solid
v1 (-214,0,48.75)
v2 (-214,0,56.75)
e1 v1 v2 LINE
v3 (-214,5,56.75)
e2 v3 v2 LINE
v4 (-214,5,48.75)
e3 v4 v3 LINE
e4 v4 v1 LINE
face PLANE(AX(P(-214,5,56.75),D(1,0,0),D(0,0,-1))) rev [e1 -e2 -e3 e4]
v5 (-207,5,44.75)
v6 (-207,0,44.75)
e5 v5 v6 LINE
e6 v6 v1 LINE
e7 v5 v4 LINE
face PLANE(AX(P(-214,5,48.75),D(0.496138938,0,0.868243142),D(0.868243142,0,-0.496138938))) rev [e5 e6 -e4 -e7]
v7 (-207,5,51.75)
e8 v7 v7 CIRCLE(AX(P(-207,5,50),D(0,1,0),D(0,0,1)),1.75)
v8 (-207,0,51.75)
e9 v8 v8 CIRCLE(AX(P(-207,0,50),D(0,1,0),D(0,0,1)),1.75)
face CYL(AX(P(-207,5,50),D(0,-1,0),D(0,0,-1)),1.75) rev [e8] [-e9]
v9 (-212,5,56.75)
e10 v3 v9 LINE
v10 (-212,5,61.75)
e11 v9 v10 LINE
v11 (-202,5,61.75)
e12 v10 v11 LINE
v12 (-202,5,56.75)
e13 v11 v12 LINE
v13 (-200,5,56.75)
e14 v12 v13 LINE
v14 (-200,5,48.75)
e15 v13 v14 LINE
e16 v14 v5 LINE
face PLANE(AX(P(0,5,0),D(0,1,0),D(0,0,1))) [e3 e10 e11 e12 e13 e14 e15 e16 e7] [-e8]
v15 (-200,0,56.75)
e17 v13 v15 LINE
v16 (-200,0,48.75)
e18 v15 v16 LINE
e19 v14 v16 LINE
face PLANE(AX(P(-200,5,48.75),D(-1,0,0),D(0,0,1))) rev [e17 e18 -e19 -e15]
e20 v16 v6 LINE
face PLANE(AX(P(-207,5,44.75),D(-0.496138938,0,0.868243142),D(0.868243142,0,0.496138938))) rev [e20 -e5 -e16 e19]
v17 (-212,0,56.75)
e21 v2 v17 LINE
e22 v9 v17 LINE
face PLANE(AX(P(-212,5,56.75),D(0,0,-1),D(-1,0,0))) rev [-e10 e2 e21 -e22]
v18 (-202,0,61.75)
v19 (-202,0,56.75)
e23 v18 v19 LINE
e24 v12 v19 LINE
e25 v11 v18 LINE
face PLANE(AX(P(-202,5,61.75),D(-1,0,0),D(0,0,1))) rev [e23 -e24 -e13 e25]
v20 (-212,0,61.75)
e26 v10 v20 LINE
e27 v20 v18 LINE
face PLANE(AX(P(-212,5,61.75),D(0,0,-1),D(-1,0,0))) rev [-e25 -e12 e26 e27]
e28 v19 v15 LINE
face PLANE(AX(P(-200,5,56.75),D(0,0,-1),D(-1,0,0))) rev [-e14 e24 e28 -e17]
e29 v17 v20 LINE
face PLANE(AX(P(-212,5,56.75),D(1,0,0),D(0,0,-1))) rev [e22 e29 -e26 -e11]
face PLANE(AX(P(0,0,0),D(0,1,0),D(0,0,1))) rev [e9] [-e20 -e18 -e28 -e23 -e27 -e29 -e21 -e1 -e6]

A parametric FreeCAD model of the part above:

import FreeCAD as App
import Part
import Sketcher

V = App.Vector

doc = App.newDocument("Part")
body = doc.addObject("PartDesign::Body", "Body")

# Sketch on XZ plane
sketch1 = body.newObject("Sketcher::SketchObject", "Sketch")
sketch1.AttachmentSupport = (doc.getObject("XZ_Plane"), [""])
sketch1.MapMode = "FlatFace"
sketch1.addGeometry(Part.LineSegment(V(-207, 44.75, 0), V(-214, 48.75, 0)), False)
sketch1.addGeometry(Part.LineSegment(V(-214, 48.75, 0), V(-214, 56.75, 0)), False)
sketch1.addGeometry(Part.LineSegment(V(-214, 56.75, 0), V(-212, 56.75, 0)), False)
sketch1.addGeometry(Part.LineSegment(V(-212, 56.75, 0), V(-212, 61.75, 0)), False)
sketch1.addGeometry(Part.LineSegment(V(-212, 61.75, 0), V(-202, 61.75, 0)), False)
sketch1.addGeometry(Part.LineSegment(V(-202, 61.75, 0), V(-202, 56.75, 0)), False)
sketch1.addGeometry(Part.LineSegment(V(-202, 56.75, 0), V(-200, 56.75, 0)), False)
sketch1.addGeometry(Part.LineSegment(V(-200, 56.75, 0), V(-200, 48.75, 0)), False)
sketch1.addGeometry(Part.LineSegment(V(-200, 48.75, 0), V(-207, 44.75, 0)), False)
sketch1.addGeometry(Part.Circle(V(-207, 50, 0), V(0, 0, 1), 1.75), False)
sketch1.addConstraint(Sketcher.Constraint("Coincident", 0, 2, 1, 1))
sketch1.addConstraint(Sketcher.Constraint("Coincident", 1, 2, 2, 1))
sketch1.addConstraint(Sketcher.Constraint("Coincident", 2, 2, 3, 1))
sketch1.addConstraint(Sketcher.Constraint("Coincident", 3, 2, 4, 1))
sketch1.addConstraint(Sketcher.Constraint("Coincident", 4, 2, 5, 1))
sketch1.addConstraint(Sketcher.Constraint("Coincident", 5, 2, 6, 1))
sketch1.addConstraint(Sketcher.Constraint("Coincident", 6, 2, 7, 1))
sketch1.addConstraint(Sketcher.Constraint("Coincident", 7, 2, 8, 1))
sketch1.addConstraint(Sketcher.Constraint("Coincident", 8, 2, 0, 1))
sketch1.addConstraint(Sketcher.Constraint("Vertical", 1))
sketch1.addConstraint(Sketcher.Constraint("Horizontal", 2))
sketch1.addConstraint(Sketcher.Constraint("Vertical", 3))
sketch1.addConstraint(Sketcher.Constraint("Horizontal", 4))
sketch1.addConstraint(Sketcher.Constraint("Vertical", 5))
sketch1.addConstraint(Sketcher.Constraint("Horizontal", 6))
sketch1.addConstraint(Sketcher.Constraint("Vertical", 7))
sketch1.addConstraint(Sketcher.Constraint("Horizontal", 2, 2, 5, 2))
sketch1.addConstraint(Sketcher.Constraint("Horizontal", 0, 2, 7, 2))
sketch1.addConstraint(Sketcher.Constraint("Vertical", 9, 3, 8, 2))
sketch1.addConstraint(Sketcher.Constraint("Equal", 2, 6))
sketch1.addConstraint(Sketcher.Constraint("Equal", 0, 8))
sketch1.addConstraint(Sketcher.Constraint("Diameter", 9, 3.5))
sketch1.addConstraint(Sketcher.Constraint("DistanceX", 2, 1, 2, 2, 2.0))
sketch1.addConstraint(Sketcher.Constraint("DistanceX", 4, 1, 4, 2, 10.0))
sketch1.addConstraint(Sketcher.Constraint("DistanceY", 1, 1, 1, 2, 8.0))
sketch1.addConstraint(Sketcher.Constraint("DistanceY", 3, 1, 3, 2, 5.0))
sketch1.addConstraint(Sketcher.Constraint("DistanceX", 9, 3, -1, 1, 207.0))
sketch1.addConstraint(Sketcher.Constraint("DistanceY", -1, 1, 9, 3, 50.0))
sketch1.addConstraint(Sketcher.Constraint("DistanceY", 8, 2, 0, 2, 4.0))
sketch1.addConstraint(Sketcher.Constraint("DistanceY", -1, 1, 0, 2, 48.75))
pad1 = body.newObject("PartDesign::Pad", "Pad")
pad1.Profile = sketch1
pad1.Length = 5
pad1.Reversed = True

doc.recompute()
